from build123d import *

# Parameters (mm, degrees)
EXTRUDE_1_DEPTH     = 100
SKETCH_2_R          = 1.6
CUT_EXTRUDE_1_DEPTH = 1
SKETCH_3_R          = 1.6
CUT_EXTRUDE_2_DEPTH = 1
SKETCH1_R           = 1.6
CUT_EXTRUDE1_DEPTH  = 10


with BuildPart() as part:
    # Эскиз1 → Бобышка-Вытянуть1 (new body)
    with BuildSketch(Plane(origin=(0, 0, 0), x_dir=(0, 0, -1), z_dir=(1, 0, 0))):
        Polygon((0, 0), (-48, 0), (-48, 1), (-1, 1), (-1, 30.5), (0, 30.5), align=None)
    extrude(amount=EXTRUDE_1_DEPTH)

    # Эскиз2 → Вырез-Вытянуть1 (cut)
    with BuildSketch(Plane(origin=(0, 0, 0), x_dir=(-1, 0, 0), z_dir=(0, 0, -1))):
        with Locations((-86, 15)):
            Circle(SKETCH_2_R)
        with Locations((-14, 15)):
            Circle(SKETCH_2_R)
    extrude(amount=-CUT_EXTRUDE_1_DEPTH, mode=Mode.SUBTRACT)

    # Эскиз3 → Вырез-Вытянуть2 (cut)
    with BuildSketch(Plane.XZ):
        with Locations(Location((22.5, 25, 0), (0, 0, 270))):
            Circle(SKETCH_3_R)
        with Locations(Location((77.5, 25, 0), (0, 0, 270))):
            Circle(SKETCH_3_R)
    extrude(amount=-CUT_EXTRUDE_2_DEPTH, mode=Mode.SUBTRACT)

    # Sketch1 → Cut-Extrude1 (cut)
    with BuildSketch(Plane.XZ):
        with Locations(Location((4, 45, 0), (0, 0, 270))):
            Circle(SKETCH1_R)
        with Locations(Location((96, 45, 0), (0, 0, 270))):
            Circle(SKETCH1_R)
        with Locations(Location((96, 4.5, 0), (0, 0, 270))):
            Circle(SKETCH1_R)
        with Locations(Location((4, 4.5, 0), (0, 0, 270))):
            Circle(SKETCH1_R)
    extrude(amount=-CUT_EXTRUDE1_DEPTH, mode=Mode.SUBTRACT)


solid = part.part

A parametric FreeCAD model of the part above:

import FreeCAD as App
import Part
import Sketcher

V = App.Vector
Q = App.Units.Quantity

doc = App.newDocument("Part")
body = doc.addObject("PartDesign::Body", "Body")

sketch1 = body.newObject("Sketcher::SketchObject", "Sketch")
sketch1.AttachmentSupport = (doc.getObject("YZ_Plane"), [""])
sketch1.MapMode = "FlatFace"
sketch1.addGeometry([
    Part.LineSegment(V(0, 48, 0), V(0, 0, 0)),
    Part.LineSegment(V(0, 0, 0), V(30.5, 0, 0)),
    Part.LineSegment(V(30.5, 0, 0), V(30.5, 1, 0)),
    Part.LineSegment(V(30.5, 1, 0), V(1, 1, 0)),
    Part.LineSegment(V(1, 1, 0), V(1, 48, 0)),
    Part.LineSegment(V(1, 48, 0), V(0, 48, 0)),
], False)
sketch1.addConstraint([
    Sketcher.Constraint("Coincident", 0, 2, 1, 1),
    Sketcher.Constraint("Coincident", 1, 2, 2, 1),
    Sketcher.Constraint("Coincident", 2, 2, 3, 1),
    Sketcher.Constraint("Coincident", 3, 2, 4, 1),
    Sketcher.Constraint("Coincident", 4, 2, 5, 1),
    Sketcher.Constraint("Coincident", 5, 2, 0, 1),
    Sketcher.Constraint("Vertical", 0),
    Sketcher.Constraint("Horizontal", 1),
    Sketcher.Constraint("Vertical", 2),
    Sketcher.Constraint("Horizontal", 3),
    Sketcher.Constraint("Vertical", 4),
    Sketcher.Constraint("Horizontal", 5),
    Sketcher.Constraint("Coincident", 0, 2, -1, 1),
    Sketcher.Constraint("Equal", 5, 2),
    Sketcher.Constraint("DistanceX", 5, 2, 5, 1, Q("1 mm")),
    Sketcher.Constraint("DistanceY", 0, 2, 0, 1, Q("48 mm")),
    Sketcher.Constraint("DistanceX", 1, 1, 1, 2, Q("30.5 mm")),
])
pad1 = body.newObject("PartDesign::Pad", "Pad")
pad1.Profile = sketch1
pad1.Length = 100

sketch2 = body.newObject("Sketcher::SketchObject", "Sketch001")
sketch2.AttachmentSupport = (doc.getObject("XY_Plane"), [""])
sketch2.MapMode = "FlatFace"
sketch2.addGeometry([
    Part.Circle(V(86, 15, 0), V(0, 0, 1), 1.6),
    Part.Circle(V(14, 15, 0), V(0, 0, 1), 1.6),
], False)
sketch2.addConstraint([
    Sketcher.Constraint("Equal", 0, 1),
    Sketcher.Constraint("Horizontal", 0, 3, 1, 3),
    Sketcher.Constraint("Diameter", 0, Q("3.2 mm")),
    Sketcher.Constraint("DistanceX", -1, 1, 0, 3, Q("86 mm")),
    Sketcher.Constraint("DistanceY", -1, 1, 0, 3, Q("15 mm")),
    Sketcher.Constraint("DistanceX", -1, 1, 1, 3, Q("14 mm")),
])
pocket1 = body.newObject("PartDesign::Pocket", "Pocket")
pocket1.Profile = sketch2
pocket1.Length = 1
pocket1.Reversed = True

sketch3 = body.newObject("Sketcher::SketchObject", "Sketch002")
sketch3.AttachmentSupport = (doc.getObject("XZ_Plane"), [""])
sketch3.MapMode = "FlatFace"
sketch3.addGeometry([
    Part.Circle(V(22.5, 25, 0), V(0, 0, 1), 1.6),
    Part.Circle(V(77.5, 25, 0), V(0, 0, 1), 1.6),
], False)
sketch3.addConstraint([
    Sketcher.Constraint("Equal", 0, 1),
    Sketcher.Constraint("Horizontal", 0, 3, 1, 3),
    Sketcher.Constraint("Diameter", 0, Q("3.2 mm")),
    Sketcher.Constraint("DistanceY", -1, 1, 0, 3, Q("25 mm")),
    Sketcher.Constraint("DistanceX", 0, 3, 1, 3, Q("55 mm")),
    Sketcher.Constraint("DistanceX", -1, 1, 0, 3, Q("22.5 mm")),
])
pocket2 = body.newObject("PartDesign::Pocket", "Pocket001")
pocket2.Profile = sketch3
pocket2.Length = 1

sketch4 = body.newObject("Sketcher::SketchObject", "Sketch003")
sketch4.AttachmentSupport = (doc.getObject("XZ_Plane"), [""])
sketch4.MapMode = "FlatFace"
sketch4.addGeometry([
    Part.Circle(V(4, 45, 0), V(0, 0, 1), 1.6),
    Part.Circle(V(96, 45, 0), V(0, 0, 1), 1.6),
    Part.Circle(V(96, 4.5, 0), V(0, 0, 1), 1.6),
    Part.Circle(V(4, 4.5, 0), V(0, 0, 1), 1.6),
], False)
sketch4.addConstraint([
    Sketcher.Constraint("Equal", 0, 1),
    Sketcher.Constraint("Equal", 1, 2),
    Sketcher.Constraint("Equal", 2, 3),
    Sketcher.Constraint("Horizontal", 0, 3, 1, 3),
    Sketcher.Constraint("Horizontal", 2, 3, 3, 3),
    Sketcher.Constraint("Vertical", 1, 3, 2, 3),
    Sketcher.Constraint("Vertical", 0, 3, 3, 3),
    Sketcher.Constraint("Diameter", 0, Q("3.2 mm")),
    Sketcher.Constraint("DistanceX", -1, 1, 0, 3, Q("4 mm")),
    Sketcher.Constraint("DistanceY", -1, 1, 0, 3, Q("45 mm")),
    Sketcher.Constraint("DistanceX", -1, 1, 1, 3, Q("96 mm")),
    Sketcher.Constraint("DistanceY", -1, 1, 2, 3, Q("4.5 mm")),
])
pocket3 = body.newObject("PartDesign::Pocket", "Pocket002")
pocket3.Profile = sketch4
pocket3.Length = 10

doc.recompute()
